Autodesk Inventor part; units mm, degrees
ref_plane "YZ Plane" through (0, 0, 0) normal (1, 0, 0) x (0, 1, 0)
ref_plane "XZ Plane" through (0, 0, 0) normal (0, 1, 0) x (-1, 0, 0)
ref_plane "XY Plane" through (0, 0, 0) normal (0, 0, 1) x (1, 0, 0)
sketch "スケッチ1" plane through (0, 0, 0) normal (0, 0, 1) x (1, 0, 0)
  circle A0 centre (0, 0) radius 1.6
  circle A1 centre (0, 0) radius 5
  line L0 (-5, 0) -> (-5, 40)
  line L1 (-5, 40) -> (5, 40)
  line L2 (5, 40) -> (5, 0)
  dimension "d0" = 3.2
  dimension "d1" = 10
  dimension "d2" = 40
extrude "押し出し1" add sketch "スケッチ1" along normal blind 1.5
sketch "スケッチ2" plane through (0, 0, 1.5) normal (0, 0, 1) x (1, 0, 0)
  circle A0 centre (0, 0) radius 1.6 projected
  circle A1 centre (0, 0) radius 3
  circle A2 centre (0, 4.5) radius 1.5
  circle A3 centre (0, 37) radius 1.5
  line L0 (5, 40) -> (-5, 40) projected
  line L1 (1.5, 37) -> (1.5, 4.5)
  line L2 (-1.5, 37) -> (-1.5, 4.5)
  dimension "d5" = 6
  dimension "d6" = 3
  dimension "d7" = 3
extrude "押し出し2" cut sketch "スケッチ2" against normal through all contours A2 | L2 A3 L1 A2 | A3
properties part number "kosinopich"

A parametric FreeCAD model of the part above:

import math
import FreeCAD as App
import Part
import Sketcher
Q = App.Units.Quantity

doc = App.newDocument("Part")
body = doc.addObject("PartDesign::Body", "Body")

# Sketch on XY plane
sketch1 = body.newObject("Sketcher::SketchObject", "Sketch")
sketch1.AttachmentSupport = (doc.getObject("XY_Plane"), [""])
sketch1.MapMode = "FlatFace"
sketch1.addGeometry(Part.ArcOfCircle(Part.Circle(App.Vector(0, 0, 0), App.Vector(0, 0, 1), 5), math.radians(180), math.radians(360)), False)
sketch1.addGeometry(Part.LineSegment(App.Vector(5, 0, 0), App.Vector(5, 40, 0)), False)
sketch1.addGeometry(Part.LineSegment(App.Vector(5, 40, 0), App.Vector(-5, 40, 0)), False)
sketch1.addGeometry(Part.LineSegment(App.Vector(-5, 40, 0), App.Vector(-5, 0, 0)), False)
sketch1.addGeometry(Part.Circle(App.Vector(0, 0, 0), App.Vector(0, 0, 1), 1.6), False)
sketch1.addConstraint(Sketcher.Constraint("Tangent", 0, 2, 1, 1))
sketch1.addConstraint(Sketcher.Constraint("Coincident", 1, 2, 2, 1))
sketch1.addConstraint(Sketcher.Constraint("Coincident", 2, 2, 3, 1))
sketch1.addConstraint(Sketcher.Constraint("Tangent", 3, 2, 0, 1))
sketch1.addConstraint(Sketcher.Constraint("Vertical", 1))
sketch1.addConstraint(Sketcher.Constraint("Horizontal", 2))
sketch1.addConstraint(Sketcher.Constraint("Vertical", 3))
sketch1.addConstraint(Sketcher.Constraint("Coincident", 0, 3, -1, 1))
sketch1.addConstraint(Sketcher.Constraint("Coincident", 4, 3, -1, 1))
sketch1.addConstraint(Sketcher.Constraint("Radius", 0, Q("5 mm")))
sketch1.addConstraint(Sketcher.Constraint("Diameter", 4, Q("3.2 mm")))
sketch1.addConstraint(Sketcher.Constraint("DistanceY", 1, 1, 1, 2, Q("40 mm")))
pad1 = body.newObject("PartDesign::Pad", "Pad")
pad1.Profile = sketch1
pad1.Length = 1.5

# Sketch on XY plane
sketch2 = body.newObject("Sketcher::SketchObject", "Sketch001")
sketch2.AttachmentSupport = (doc.getObject("XY_Plane"), [""])
sketch2.MapMode = "FlatFace"
sketch2.AttachmentOffset = App.Placement(App.Vector(0, 0, 1.5), App.Rotation())
sketch2.addGeometry(Part.ArcOfCircle(Part.Circle(App.Vector(0, 4.5, 0), App.Vector(0, 0, 1), 1.5), math.radians(180), math.radians(360)), False)
sketch2.addGeometry(Part.LineSegment(App.Vector(1.5, 4.5, 0), App.Vector(1.5, 37, 0)), False)
sketch2.addGeometry(Part.ArcOfCircle(Part.Circle(App.Vector(0, 37, 0), App.Vector(0, 0, 1), 1.5), math.radians(0), math.radians(180)), False)
sketch2.addGeometry(Part.LineSegment(App.Vector(-1.5, 37, 0), App.Vector(-1.5, 4.5, 0)), False)
sketch2.addConstraint(Sketcher.Constraint("Tangent", 0, 2, 1, 1))
sketch2.addConstraint(Sketcher.Constraint("Tangent", 1, 2, 2, 1))
sketch2.addConstraint(Sketcher.Constraint("Tangent", 2, 2, 3, 1))
sketch2.addConstraint(Sketcher.Constraint("Tangent", 3, 2, 0, 1))
sketch2.addConstraint(Sketcher.Constraint("Vertical", 1))
sketch2.addConstraint(Sketcher.Constraint("Vertical", 3))
sketch2.addConstraint(Sketcher.Constraint("PointOnObject", 0, 3, -2))
sketch2.addConstraint(Sketcher.Constraint("Radius", 0, Q("1.5 mm")))
sketch2.addConstraint(Sketcher.Constraint("DistanceY", 1, 1, 1, 2, Q("32.5 mm")))
sketch2.addConstraint(Sketcher.Constraint("DistanceY", -1, 1, 2, 3, Q("37 mm")))
pocket1 = body.newObject("PartDesign::Pocket", "Pocket")
pocket1.Profile = sketch2
pocket1.Type = "ThroughAll"

doc.recompute()
